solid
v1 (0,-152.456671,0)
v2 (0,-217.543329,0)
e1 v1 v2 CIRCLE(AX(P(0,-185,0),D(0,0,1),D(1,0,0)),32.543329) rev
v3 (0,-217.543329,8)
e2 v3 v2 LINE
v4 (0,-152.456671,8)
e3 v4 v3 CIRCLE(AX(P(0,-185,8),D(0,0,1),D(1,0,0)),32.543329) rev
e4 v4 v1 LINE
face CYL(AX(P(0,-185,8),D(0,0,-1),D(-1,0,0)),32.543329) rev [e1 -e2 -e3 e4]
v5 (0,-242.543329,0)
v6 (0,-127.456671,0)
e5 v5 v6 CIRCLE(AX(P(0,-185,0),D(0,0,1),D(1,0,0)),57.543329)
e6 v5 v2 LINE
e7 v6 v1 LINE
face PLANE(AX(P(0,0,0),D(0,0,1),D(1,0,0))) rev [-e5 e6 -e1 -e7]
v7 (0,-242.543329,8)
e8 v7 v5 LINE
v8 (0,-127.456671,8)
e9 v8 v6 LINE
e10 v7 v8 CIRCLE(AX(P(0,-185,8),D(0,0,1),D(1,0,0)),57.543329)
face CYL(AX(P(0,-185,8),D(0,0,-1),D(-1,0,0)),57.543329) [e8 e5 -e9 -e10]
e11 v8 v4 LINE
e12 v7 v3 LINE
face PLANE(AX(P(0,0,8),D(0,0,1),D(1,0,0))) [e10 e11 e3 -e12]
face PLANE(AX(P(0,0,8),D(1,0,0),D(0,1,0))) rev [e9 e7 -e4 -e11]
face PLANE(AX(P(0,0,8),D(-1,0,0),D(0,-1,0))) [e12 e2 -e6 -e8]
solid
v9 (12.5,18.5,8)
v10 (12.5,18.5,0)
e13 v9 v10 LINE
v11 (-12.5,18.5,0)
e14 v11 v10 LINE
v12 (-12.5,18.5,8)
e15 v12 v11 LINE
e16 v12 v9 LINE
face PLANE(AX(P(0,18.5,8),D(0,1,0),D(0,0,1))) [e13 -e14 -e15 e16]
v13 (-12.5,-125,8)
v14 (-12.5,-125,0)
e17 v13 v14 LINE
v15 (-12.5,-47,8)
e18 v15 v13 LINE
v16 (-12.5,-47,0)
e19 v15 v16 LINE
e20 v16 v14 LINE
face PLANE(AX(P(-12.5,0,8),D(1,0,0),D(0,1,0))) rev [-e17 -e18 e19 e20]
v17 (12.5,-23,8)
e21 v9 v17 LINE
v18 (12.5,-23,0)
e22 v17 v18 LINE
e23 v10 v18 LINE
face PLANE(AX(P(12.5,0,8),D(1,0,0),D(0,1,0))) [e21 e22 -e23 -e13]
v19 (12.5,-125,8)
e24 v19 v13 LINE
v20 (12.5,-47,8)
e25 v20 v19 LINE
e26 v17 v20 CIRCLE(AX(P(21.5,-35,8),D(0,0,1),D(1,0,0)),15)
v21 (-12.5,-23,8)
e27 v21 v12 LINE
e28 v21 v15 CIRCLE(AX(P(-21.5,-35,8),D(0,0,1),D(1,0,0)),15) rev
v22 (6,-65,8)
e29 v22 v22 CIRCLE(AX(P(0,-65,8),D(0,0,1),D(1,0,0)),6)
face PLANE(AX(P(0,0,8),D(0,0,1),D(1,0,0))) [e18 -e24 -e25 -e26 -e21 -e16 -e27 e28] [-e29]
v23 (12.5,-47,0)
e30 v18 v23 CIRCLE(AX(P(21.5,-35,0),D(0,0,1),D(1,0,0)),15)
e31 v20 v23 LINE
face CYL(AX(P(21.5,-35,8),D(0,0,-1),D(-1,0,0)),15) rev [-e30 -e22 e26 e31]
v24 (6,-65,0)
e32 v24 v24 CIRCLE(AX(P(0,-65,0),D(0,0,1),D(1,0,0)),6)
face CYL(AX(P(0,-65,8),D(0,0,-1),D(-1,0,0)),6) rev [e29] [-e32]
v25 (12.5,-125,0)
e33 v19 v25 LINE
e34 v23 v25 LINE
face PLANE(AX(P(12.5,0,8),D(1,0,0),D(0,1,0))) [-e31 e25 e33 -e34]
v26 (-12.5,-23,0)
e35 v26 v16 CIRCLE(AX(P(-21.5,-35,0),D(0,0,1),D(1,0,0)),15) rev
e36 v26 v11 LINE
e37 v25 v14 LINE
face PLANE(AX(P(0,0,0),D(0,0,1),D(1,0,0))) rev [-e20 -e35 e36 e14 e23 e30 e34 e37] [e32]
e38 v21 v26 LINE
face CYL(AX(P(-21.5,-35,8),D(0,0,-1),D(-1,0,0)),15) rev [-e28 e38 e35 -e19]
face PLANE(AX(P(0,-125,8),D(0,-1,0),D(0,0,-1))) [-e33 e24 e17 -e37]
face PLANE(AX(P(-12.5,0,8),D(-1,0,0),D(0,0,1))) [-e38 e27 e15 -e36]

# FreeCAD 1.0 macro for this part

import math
import FreeCAD as App
import Part
import Sketcher
from FreeCAD import Vector

doc = App.newDocument("Part")
body = doc.addObject("PartDesign::Body", "Body")

# Sketch on XY plane
sketch1 = body.newObject("Sketcher::SketchObject", "Sketch")
sketch1.AttachmentSupport = (doc.getObject("XY_Plane"), [""])
sketch1.MapMode = "FlatFace"
sketch1.addGeometry(Part.ArcOfCircle(Part.Circle(Vector(-22, -35, 0), Vector(0, 0, 1), 15), math.radians(-53), math.radians(53)), False)
sketch1.addGeometry(Part.LineSegment(Vector(-12, -47, 0), Vector(-12, -125, 0)), False)
sketch1.addGeometry(Part.LineSegment(Vector(-12, -125, 0), Vector(12, -125, 0)), False)
sketch1.addGeometry(Part.LineSegment(Vector(12, -125, 0), Vector(12, -47, 0)), False)
sketch1.addGeometry(Part.ArcOfCircle(Part.Circle(Vector(22, -35, 0), Vector(0, 0, 1), 15), math.radians(127), math.radians(233)), False)
sketch1.addGeometry(Part.LineSegment(Vector(12, -23, 0), Vector(12, 18, 0)), False)
sketch1.addGeometry(Part.LineSegment(Vector(12, 18, 0), Vector(-12, 18, 0)), False)
sketch1.addGeometry(Part.LineSegment(Vector(-12, 18, 0), Vector(-12, -23, 0)), False)
sketch1.addGeometry(Part.Circle(Vector(0, -65, 0), Vector(0, 0, 1), 6), False)
sketch1.addConstraint(Sketcher.Constraint("Coincident", 0, 1, 1, 1))
sketch1.addConstraint(Sketcher.Constraint("Coincident", 1, 2, 2, 1))
sketch1.addConstraint(Sketcher.Constraint("Coincident", 2, 2, 3, 1))
sketch1.addConstraint(Sketcher.Constraint("Coincident", 3, 2, 4, 2))
sketch1.addConstraint(Sketcher.Constraint("Coincident", 4, 1, 5, 1))
sketch1.addConstraint(Sketcher.Constraint("Coincident", 5, 2, 6, 1))
sketch1.addConstraint(Sketcher.Constraint("Coincident", 6, 2, 7, 1))
sketch1.addConstraint(Sketcher.Constraint("Coincident", 7, 2, 0, 2))
sketch1.addConstraint(Sketcher.Constraint("Vertical", 1))
sketch1.addConstraint(Sketcher.Constraint("Horizontal", 2))
sketch1.addConstraint(Sketcher.Constraint("Vertical", 3))
sketch1.addConstraint(Sketcher.Constraint("Vertical", 5))
sketch1.addConstraint(Sketcher.Constraint("Horizontal", 6))
sketch1.addConstraint(Sketcher.Constraint("Vertical", 7))
sketch1.addConstraint(Sketcher.Constraint("Equal", 0, 4))
sketch1.addConstraint(Sketcher.Constraint("Symmetric", 0, 3, 4, 3, -2))
sketch1.addConstraint(Sketcher.Constraint("PointOnObject", 8, 3, -2))
sketch1.addConstraint(Sketcher.Constraint("Horizontal", 0, 1, 3, 2))
sketch1.addConstraint(Sketcher.Constraint("Horizontal", 4, 1, 7, 2))
sketch1.addConstraint(Sketcher.Constraint("Vertical", 3, 2, 4, 1))
sketch1.addConstraint(Sketcher.Constraint("Diameter", 8, 12.0))
sketch1.addConstraint(Sketcher.Constraint("Radius", 0, 15.0))
sketch1.addConstraint(Sketcher.Constraint("DistanceX", 2, 1, 2, 2, 25.0))
sketch1.addConstraint(Sketcher.Constraint("DistanceY", 1, 2, 1, 1, 78.0))
sketch1.addConstraint(Sketcher.Constraint("DistanceY", 5, 1, 5, 2, 41.5))
sketch1.addConstraint(Sketcher.Constraint("DistanceY", 0, 3, -1, 1, 35.0))
sketch1.addConstraint(Sketcher.Constraint("DistanceY", 8, 3, -1, 1, 65.0))
sketch1.addConstraint(Sketcher.Constraint("DistanceY", 0, 1, -1, 1, 47.0))
pad1 = body.newObject("PartDesign::Pad", "Pad")
pad1.Profile = sketch1
pad1.Length = 8
body2 = doc.addObject("PartDesign::Body", "Body001")

# Sketch on XY plane
sketch2 = body2.newObject("Sketcher::SketchObject", "Sketch001")
sketch2.AttachmentSupport = (doc.getObject("XY_Plane001"), [""])
sketch2.MapMode = "FlatFace"
sketch2.addGeometry(Part.LineSegment(Vector(0, -127, 0), Vector(0, -152, 0)), False)
sketch2.addGeometry(Part.ArcOfCircle(Part.Circle(Vector(0, -185, 0), Vector(0, 0, 1), 33), math.radians(-90), math.radians(90)), False)
sketch2.addGeometry(Part.LineSegment(Vector(0, -218, 0), Vector(0, -243, 0)), False)
sketch2.addGeometry(Part.ArcOfCircle(Part.Circle(Vector(0, -185, 0), Vector(0, 0, 1), 58), math.radians(-90), math.radians(90)), False)
sketch2.addConstraint(Sketcher.Constraint("Coincident", 0, 2, 1, 2))
sketch2.addConstraint(Sketcher.Constraint("Coincident", 1, 1, 2, 1))
sketch2.addConstraint(Sketcher.Constraint("Coincident", 2, 2, 3, 1))
sketch2.addConstraint(Sketcher.Constraint("Coincident", 3, 2, 0, 1))
sketch2.addConstraint(Sketcher.Constraint("Vertical", 0))
sketch2.addConstraint(Sketcher.Constraint("Vertical", 2))
sketch2.addConstraint(Sketcher.Constraint("Coincident", 3, 3, 1, 3))
sketch2.addConstraint(Sketcher.Constraint("PointOnObject", 1, 3, -2))
sketch2.addConstraint(Sketcher.Constraint("PointOnObject", 0, 2, -2))
sketch2.addConstraint(Sketcher.Constraint("PointOnObject", 1, 1, -2))
sketch2.addConstraint(Sketcher.Constraint("DistanceY", 0, 2, 0, 1, 25.0))
sketch2.addConstraint(Sketcher.Constraint("DistanceY", 1, 3, -1, 1, 185.0))
sketch2.addConstraint(Sketcher.Constraint("Radius", 1, 32.543329))
pad2 = body2.newObject("PartDesign::Pad", "Pad001")
pad2.Profile = sketch2
pad2.Length = 8

doc.recompute()
